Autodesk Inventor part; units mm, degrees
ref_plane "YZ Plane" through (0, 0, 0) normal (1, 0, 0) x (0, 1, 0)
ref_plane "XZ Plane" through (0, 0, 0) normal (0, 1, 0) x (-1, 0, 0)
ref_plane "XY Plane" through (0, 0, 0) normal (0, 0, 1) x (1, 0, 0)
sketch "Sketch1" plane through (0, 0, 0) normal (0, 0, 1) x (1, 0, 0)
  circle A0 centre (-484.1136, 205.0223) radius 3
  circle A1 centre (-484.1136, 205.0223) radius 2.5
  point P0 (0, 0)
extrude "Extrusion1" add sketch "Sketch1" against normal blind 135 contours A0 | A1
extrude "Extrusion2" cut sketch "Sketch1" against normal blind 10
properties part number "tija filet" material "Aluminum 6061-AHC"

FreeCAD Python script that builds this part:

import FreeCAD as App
import Part
import Sketcher
from FreeCAD import Vector
Q = App.Units.Quantity

doc = App.newDocument("Part")
params = doc.addObject("Spreadsheet::Sheet", "Params")
for row, (alias, value) in enumerate([
    ("sketch1_diameter", "6 mm"),
    ("pad1_length", "135 mm"),
    ("sketch2_diameter", "6 mm"),
    ("sketch2_diameter2", "5 mm"),
    ("pocket1_length", "10 mm"),
], start=1):
    params.set(f"A{row}", alias)
    params.set(f"B{row}", "=" + value)
    params.setAlias(f"B{row}", alias)

body = doc.addObject("PartDesign::Body", "Body")

sketch1 = body.newObject("Sketcher::SketchObject", "Sketch")
sketch1.AttachmentSupport = (doc.getObject("XY_Plane"), [""])
sketch1.MapMode = "FlatFace"
sketch1.addGeometry(Part.Circle(Vector(-484.1, 205, 0), Vector(0, 0, 1), 3), False)
sketch1.addConstraint(Sketcher.Constraint("Diameter", 0, Q("6 mm")))
sketch1.addConstraint(Sketcher.Constraint("DistanceX", 0, 3, -1, 1, Q("484.1136 mm")))
sketch1.addConstraint(Sketcher.Constraint("DistanceY", -1, 1, 0, 3, Q("205.0223 mm")))
sketch1.setExpression("Constraints[0]", "Params.sketch1_diameter")
pad1 = body.newObject("PartDesign::Pad", "Pad")
pad1.Profile = sketch1
pad1.setExpression("Length", "Params.pad1_length")
pad1.Reversed = True

sketch2 = body.newObject("Sketcher::SketchObject", "Sketch001")
sketch2.AttachmentSupport = (doc.getObject("XY_Plane"), [""])
sketch2.MapMode = "FlatFace"
sketch2.addGeometry(Part.Circle(Vector(-484.1, 205, 0), Vector(0, 0, 1), 3), False)
sketch2.addGeometry(Part.Circle(Vector(-484.1, 205, 0), Vector(0, 0, 1), 2.5), False)
sketch2.addConstraint(Sketcher.Constraint("Coincident", 1, 3, 0, 3))
sketch2.addConstraint(Sketcher.Constraint("Diameter", 0, Q("6 mm")))
sketch2.addConstraint(Sketcher.Constraint("Diameter", 1, Q("5 mm")))
sketch2.addConstraint(Sketcher.Constraint("DistanceX", 0, 3, -1, 1, Q("484.1136 mm")))
sketch2.addConstraint(Sketcher.Constraint("DistanceY", -1, 1, 0, 3, Q("205.0223 mm")))
sketch2.setExpression("Constraints[1]", "Params.sketch2_diameter")
sketch2.setExpression("Constraints[2]", "Params.sketch2_diameter2")
pocket1 = body.newObject("PartDesign::Pocket", "Pocket")
pocket1.Profile = sketch2
pocket1.setExpression("Length", "Params.pocket1_length")

doc.recompute()
